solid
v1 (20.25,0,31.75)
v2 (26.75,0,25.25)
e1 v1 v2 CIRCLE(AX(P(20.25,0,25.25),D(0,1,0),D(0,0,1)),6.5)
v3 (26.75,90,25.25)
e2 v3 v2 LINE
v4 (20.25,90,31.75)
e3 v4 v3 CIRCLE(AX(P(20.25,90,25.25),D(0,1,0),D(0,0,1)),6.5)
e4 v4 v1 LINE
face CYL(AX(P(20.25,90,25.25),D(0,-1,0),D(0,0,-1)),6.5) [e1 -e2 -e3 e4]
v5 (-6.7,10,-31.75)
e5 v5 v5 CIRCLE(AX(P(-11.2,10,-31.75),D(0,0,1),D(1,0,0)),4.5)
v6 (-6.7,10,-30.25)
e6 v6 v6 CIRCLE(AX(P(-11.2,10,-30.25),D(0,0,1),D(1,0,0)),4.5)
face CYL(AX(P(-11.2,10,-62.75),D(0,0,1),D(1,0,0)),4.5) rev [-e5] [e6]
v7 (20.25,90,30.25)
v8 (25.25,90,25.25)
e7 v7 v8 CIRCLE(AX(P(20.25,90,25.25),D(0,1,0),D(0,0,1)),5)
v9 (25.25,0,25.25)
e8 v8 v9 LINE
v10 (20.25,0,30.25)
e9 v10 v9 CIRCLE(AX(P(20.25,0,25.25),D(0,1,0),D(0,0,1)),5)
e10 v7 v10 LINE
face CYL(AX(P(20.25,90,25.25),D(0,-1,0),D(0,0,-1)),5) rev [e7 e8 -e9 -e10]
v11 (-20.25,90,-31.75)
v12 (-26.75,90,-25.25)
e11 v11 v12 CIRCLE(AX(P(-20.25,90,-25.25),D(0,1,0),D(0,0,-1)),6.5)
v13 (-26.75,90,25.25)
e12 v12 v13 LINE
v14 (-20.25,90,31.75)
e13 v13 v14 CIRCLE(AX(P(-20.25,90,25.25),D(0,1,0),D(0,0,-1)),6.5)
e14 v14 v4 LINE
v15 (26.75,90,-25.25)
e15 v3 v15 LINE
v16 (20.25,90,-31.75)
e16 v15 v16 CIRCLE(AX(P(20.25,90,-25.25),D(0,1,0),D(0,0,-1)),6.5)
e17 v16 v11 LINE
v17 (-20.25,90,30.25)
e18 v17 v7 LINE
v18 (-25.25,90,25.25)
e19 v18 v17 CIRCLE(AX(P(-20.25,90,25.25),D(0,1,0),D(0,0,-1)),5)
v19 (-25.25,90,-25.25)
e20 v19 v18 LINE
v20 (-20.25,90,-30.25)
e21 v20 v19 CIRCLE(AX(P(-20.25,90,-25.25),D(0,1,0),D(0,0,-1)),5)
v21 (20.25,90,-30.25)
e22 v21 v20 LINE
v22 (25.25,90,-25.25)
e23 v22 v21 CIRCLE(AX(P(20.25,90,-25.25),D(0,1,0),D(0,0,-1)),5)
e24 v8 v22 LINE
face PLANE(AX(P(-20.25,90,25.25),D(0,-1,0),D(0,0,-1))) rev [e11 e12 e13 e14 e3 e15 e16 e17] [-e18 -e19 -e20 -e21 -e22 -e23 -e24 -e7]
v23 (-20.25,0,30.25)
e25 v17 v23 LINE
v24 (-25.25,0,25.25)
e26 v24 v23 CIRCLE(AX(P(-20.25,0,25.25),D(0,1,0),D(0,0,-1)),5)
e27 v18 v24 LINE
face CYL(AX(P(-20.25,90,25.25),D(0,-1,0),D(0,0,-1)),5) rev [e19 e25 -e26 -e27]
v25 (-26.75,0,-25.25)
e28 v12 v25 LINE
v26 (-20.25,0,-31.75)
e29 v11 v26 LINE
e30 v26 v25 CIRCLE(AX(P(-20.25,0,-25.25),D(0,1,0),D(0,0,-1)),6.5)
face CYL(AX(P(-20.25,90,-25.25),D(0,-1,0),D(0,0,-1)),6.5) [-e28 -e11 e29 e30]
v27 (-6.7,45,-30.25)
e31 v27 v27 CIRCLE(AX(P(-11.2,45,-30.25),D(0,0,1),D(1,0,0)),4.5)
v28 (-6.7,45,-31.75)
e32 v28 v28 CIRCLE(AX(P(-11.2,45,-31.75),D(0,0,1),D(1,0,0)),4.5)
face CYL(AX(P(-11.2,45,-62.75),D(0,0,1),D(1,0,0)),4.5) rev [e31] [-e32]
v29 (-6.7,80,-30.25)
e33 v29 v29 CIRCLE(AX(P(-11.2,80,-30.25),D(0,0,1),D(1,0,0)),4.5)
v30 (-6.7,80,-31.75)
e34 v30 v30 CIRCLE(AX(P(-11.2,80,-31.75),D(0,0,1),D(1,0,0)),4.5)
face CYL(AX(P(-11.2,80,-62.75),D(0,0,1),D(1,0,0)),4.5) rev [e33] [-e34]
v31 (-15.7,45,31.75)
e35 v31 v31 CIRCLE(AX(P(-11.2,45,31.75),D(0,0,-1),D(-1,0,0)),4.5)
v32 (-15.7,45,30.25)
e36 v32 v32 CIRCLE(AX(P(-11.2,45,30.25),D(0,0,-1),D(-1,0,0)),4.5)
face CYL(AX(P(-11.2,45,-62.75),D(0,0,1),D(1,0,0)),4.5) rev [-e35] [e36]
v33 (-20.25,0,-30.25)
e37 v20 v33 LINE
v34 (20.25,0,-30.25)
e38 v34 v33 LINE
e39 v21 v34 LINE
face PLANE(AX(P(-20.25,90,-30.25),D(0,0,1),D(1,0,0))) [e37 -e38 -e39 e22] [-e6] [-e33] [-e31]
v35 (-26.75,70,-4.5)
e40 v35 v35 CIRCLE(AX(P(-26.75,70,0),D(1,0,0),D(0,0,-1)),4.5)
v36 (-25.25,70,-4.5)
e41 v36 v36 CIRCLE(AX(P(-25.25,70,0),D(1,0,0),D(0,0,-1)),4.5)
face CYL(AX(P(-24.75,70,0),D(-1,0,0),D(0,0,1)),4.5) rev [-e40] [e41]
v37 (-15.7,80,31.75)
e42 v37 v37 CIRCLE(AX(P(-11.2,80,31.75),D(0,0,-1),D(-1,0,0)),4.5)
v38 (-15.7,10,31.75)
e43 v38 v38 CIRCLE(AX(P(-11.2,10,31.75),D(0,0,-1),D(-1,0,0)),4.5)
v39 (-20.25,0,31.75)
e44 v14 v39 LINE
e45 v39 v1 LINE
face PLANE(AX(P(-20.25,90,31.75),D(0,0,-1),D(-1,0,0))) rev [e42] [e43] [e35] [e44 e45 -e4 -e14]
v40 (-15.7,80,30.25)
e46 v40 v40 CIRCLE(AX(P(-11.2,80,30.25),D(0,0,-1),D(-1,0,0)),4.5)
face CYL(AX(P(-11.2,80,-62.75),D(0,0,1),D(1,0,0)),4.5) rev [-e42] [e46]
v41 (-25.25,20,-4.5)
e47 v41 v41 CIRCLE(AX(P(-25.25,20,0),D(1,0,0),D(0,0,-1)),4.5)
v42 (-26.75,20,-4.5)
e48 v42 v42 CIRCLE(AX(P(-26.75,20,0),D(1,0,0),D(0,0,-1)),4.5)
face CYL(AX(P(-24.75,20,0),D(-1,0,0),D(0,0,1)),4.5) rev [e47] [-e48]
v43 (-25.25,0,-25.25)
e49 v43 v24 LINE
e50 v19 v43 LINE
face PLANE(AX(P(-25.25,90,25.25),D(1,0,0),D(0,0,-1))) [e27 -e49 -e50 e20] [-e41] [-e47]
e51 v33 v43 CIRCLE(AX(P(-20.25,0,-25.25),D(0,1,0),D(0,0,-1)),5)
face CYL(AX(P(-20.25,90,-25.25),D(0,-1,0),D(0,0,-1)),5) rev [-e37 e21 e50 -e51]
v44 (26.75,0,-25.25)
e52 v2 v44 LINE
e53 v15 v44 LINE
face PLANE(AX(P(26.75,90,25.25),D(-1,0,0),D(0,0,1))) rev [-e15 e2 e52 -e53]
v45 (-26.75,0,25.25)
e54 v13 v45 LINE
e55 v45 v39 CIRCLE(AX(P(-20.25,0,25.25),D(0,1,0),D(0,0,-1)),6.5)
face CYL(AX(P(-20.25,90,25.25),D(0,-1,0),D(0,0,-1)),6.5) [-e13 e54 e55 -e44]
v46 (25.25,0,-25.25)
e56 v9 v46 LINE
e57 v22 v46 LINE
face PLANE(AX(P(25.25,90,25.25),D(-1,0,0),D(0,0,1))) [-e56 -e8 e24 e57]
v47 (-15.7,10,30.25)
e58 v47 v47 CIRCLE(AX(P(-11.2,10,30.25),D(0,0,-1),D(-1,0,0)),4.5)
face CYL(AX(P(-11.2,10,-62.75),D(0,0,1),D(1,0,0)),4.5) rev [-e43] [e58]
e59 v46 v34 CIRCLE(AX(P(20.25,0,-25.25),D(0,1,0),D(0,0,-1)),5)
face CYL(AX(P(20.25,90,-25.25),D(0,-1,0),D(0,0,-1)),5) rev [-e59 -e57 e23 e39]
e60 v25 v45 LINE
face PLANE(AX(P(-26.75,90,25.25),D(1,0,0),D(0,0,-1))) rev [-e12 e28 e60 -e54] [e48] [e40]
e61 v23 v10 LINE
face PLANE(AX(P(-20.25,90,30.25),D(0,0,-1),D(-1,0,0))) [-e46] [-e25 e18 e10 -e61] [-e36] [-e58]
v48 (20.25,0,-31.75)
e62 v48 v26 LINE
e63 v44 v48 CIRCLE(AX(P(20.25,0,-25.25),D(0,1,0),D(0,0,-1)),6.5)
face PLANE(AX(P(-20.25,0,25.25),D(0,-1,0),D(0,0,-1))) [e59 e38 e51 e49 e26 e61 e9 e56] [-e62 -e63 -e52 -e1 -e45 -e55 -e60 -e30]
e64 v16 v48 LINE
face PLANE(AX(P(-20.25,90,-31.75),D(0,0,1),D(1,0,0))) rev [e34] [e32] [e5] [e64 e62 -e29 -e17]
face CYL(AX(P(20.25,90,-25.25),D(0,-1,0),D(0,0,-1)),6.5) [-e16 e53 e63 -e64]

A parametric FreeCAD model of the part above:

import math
import FreeCAD as App
import Part
import Sketcher

V = App.Vector

doc = App.newDocument("Part")
body = doc.addObject("PartDesign::Body", "Body")

# Sketch on XZ plane
sketch1 = body.newObject("Sketcher::SketchObject", "Sketch")
sketch1.AttachmentSupport = (doc.getObject("XZ_Plane"), [""])
sketch1.MapMode = "FlatFace"
sketch1.addGeometry(Part.LineSegment(V(-20, 32, 0), V(20, 32, 0)), False)
sketch1.addGeometry(Part.ArcOfCircle(Part.Circle(V(20, 25, 0), V(0, 0, 1), 6), math.radians(0), math.radians(90)), False)
sketch1.addGeometry(Part.LineSegment(V(27, 25, 0), V(27, -25, 0)), False)
sketch1.addGeometry(Part.ArcOfCircle(Part.Circle(V(20, -25, 0), V(0, 0, 1), 6), math.radians(-90), math.radians(0)), False)
sketch1.addGeometry(Part.LineSegment(V(20, -32, 0), V(-20, -32, 0)), False)
sketch1.addGeometry(Part.ArcOfCircle(Part.Circle(V(-20, -25, 0), V(0, 0, 1), 6), math.radians(180), math.radians(270)), False)
sketch1.addGeometry(Part.LineSegment(V(-27, -25, 0), V(-27, 25, 0)), False)
sketch1.addGeometry(Part.ArcOfCircle(Part.Circle(V(-20, 25, 0), V(0, 0, 1), 6), math.radians(90), math.radians(180)), False)
sketch1.addGeometry(Part.LineSegment(V(20, 30, 0), V(-20, 30, 0)), False)
sketch1.addGeometry(Part.ArcOfCircle(Part.Circle(V(-20, 25, 0), V(0, 0, 1), 5), math.radians(90), math.radians(180)), False)
sketch1.addGeometry(Part.LineSegment(V(-25, 25, 0), V(-25, -25, 0)), False)
sketch1.addGeometry(Part.ArcOfCircle(Part.Circle(V(-20, -25, 0), V(0, 0, 1), 5), math.radians(180), math.radians(270)), False)
sketch1.addGeometry(Part.LineSegment(V(-20, -30, 0), V(20, -30, 0)), False)
sketch1.addGeometry(Part.ArcOfCircle(Part.Circle(V(20, -25, 0), V(0, 0, 1), 5), math.radians(-90), math.radians(0)), False)
sketch1.addGeometry(Part.LineSegment(V(25, -25, 0), V(25, 25, 0)), False)
sketch1.addGeometry(Part.ArcOfCircle(Part.Circle(V(20, 25, 0), V(0, 0, 1), 5), math.radians(0), math.radians(90)), False)
sketch1.addConstraint(Sketcher.Constraint("Tangent", 0, 2, 1, 2))
sketch1.addConstraint(Sketcher.Constraint("Tangent", 1, 1, 2, 1))
sketch1.addConstraint(Sketcher.Constraint("Tangent", 2, 2, 3, 2))
sketch1.addConstraint(Sketcher.Constraint("Tangent", 3, 1, 4, 1))
sketch1.addConstraint(Sketcher.Constraint("Tangent", 4, 2, 5, 2))
sketch1.addConstraint(Sketcher.Constraint("Tangent", 5, 1, 6, 1))
sketch1.addConstraint(Sketcher.Constraint("Tangent", 6, 2, 7, 2))
sketch1.addConstraint(Sketcher.Constraint("Tangent", 7, 1, 0, 1))
sketch1.addConstraint(Sketcher.Constraint("Tangent", 8, 2, 9, 1))
sketch1.addConstraint(Sketcher.Constraint("Tangent", 9, 2, 10, 1))
sketch1.addConstraint(Sketcher.Constraint("Tangent", 10, 2, 11, 1))
sketch1.addConstraint(Sketcher.Constraint("Tangent", 11, 2, 12, 1))
sketch1.addConstraint(Sketcher.Constraint("Tangent", 12, 2, 13, 1))
sketch1.addConstraint(Sketcher.Constraint("Tangent", 13, 2, 14, 1))
sketch1.addConstraint(Sketcher.Constraint("Tangent", 14, 2, 15, 1))
sketch1.addConstraint(Sketcher.Constraint("Tangent", 15, 2, 8, 1))
sketch1.addConstraint(Sketcher.Constraint("Horizontal", 0))
sketch1.addConstraint(Sketcher.Constraint("Vertical", 2))
sketch1.addConstraint(Sketcher.Constraint("Horizontal", 4))
sketch1.addConstraint(Sketcher.Constraint("Vertical", 6))
sketch1.addConstraint(Sketcher.Constraint("Horizontal", 8))
sketch1.addConstraint(Sketcher.Constraint("Vertical", 10))
sketch1.addConstraint(Sketcher.Constraint("Horizontal", 12))
sketch1.addConstraint(Sketcher.Constraint("Vertical", 14))
sketch1.addConstraint(Sketcher.Constraint("Coincident", 9, 3, 7, 3))
sketch1.addConstraint(Sketcher.Constraint("Coincident", 11, 3, 5, 3))
sketch1.addConstraint(Sketcher.Constraint("Coincident", 13, 3, 3, 3))
sketch1.addConstraint(Sketcher.Constraint("Equal", 1, 3))
sketch1.addConstraint(Sketcher.Constraint("Equal", 3, 5))
sketch1.addConstraint(Sketcher.Constraint("Equal", 5, 7))
sketch1.addConstraint(Sketcher.Constraint("Equal", 13, 15))
sketch1.addConstraint(Sketcher.Constraint("Symmetric", 1, 3, 5, 3, -1, 1))
sketch1.addConstraint(Sketcher.Constraint("Radius", 9, 5.0))
sketch1.addConstraint(Sketcher.Constraint("Radius", 1, 6.5))
sketch1.addConstraint(Sketcher.Constraint("DistanceX", 0, 1, 0, 2, 40.5))
sketch1.addConstraint(Sketcher.Constraint("DistanceY", 2, 2, 2, 1, 50.5))
pad1 = body.newObject("PartDesign::Pad", "Pad")
pad1.Profile = sketch1
pad1.Length = 90
pad1.Reversed = True

# Sketch on YZ plane
sketch2 = body.newObject("Sketcher::SketchObject", "Sketch001")
sketch2.AttachmentSupport = (doc.getObject("YZ_Plane"), [""])
sketch2.MapMode = "FlatFace"
sketch2.AttachmentOffset = App.Placement(V(0, 0, -34.75), App.Rotation())
sketch2.addGeometry(Part.Circle(V(70, 0, 0), V(0, 0, 1), 4.5), False)
sketch2.addGeometry(Part.Circle(V(20, 0, 0), V(0, 0, 1), 4.5), False)
sketch2.addConstraint(Sketcher.Constraint("Equal", 0, 1))
sketch2.addConstraint(Sketcher.Constraint("PointOnObject", 0, 3, -1))
sketch2.addConstraint(Sketcher.Constraint("PointOnObject", 1, 3, -1))
sketch2.addConstraint(Sketcher.Constraint("Diameter", 0, 9.0))
sketch2.addConstraint(Sketcher.Constraint("DistanceX", -1, 1, 0, 3, 70.0))
sketch2.addConstraint(Sketcher.Constraint("DistanceX", -1, 1, 1, 3, 20.0))
pocket1 = body.newObject("PartDesign::Pocket", "Pocket")
pocket1.Profile = sketch2
pocket1.Length = 10
pocket1.Reversed = True

# Sketch on XY plane
sketch3 = body.newObject("Sketcher::SketchObject", "Sketch002")
sketch3.AttachmentSupport = (doc.getObject("XY_Plane"), [""])
sketch3.MapMode = "FlatFace"
sketch3.AttachmentOffset = App.Placement(V(0, 0, 32.25), App.Rotation())
sketch3.addGeometry(Part.Circle(V(-11.2, 80, 0), V(0, 0, 1), 4.5), False)
sketch3.addGeometry(Part.Circle(V(-11.2, 10, 0), V(0, 0, 1), 4.5), False)
sketch3.addGeometry(Part.Circle(V(-11.2, 45, 0), V(0, 0, 1), 4.5), False)
sketch3.addConstraint(Sketcher.Constraint("Equal", 0, 1))
sketch3.addConstraint(Sketcher.Constraint("Equal", 1, 2))
sketch3.addConstraint(Sketcher.Constraint("Vertical", 0, 3, 1, 3))
sketch3.addConstraint(Sketcher.Constraint("Vertical", 1, 3, 2, 3))
sketch3.addConstraint(Sketcher.Constraint("Diameter", 0, 9.0))
sketch3.addConstraint(Sketcher.Constraint("DistanceY", -1, 1, 0, 3, 80.0))
sketch3.addConstraint(Sketcher.Constraint("DistanceY", -1, 1, 1, 3, 10.0))
sketch3.addConstraint(Sketcher.Constraint("DistanceY", -1, 1, 2, 3, 45.0))
sketch3.addConstraint(Sketcher.Constraint("DistanceX", 0, 3, -1, 1, 11.2))
pocket2 = body.newObject("PartDesign::Pocket", "Pocket001")
pocket2.Profile = sketch3
pocket2.Length = 95

doc.recompute()
